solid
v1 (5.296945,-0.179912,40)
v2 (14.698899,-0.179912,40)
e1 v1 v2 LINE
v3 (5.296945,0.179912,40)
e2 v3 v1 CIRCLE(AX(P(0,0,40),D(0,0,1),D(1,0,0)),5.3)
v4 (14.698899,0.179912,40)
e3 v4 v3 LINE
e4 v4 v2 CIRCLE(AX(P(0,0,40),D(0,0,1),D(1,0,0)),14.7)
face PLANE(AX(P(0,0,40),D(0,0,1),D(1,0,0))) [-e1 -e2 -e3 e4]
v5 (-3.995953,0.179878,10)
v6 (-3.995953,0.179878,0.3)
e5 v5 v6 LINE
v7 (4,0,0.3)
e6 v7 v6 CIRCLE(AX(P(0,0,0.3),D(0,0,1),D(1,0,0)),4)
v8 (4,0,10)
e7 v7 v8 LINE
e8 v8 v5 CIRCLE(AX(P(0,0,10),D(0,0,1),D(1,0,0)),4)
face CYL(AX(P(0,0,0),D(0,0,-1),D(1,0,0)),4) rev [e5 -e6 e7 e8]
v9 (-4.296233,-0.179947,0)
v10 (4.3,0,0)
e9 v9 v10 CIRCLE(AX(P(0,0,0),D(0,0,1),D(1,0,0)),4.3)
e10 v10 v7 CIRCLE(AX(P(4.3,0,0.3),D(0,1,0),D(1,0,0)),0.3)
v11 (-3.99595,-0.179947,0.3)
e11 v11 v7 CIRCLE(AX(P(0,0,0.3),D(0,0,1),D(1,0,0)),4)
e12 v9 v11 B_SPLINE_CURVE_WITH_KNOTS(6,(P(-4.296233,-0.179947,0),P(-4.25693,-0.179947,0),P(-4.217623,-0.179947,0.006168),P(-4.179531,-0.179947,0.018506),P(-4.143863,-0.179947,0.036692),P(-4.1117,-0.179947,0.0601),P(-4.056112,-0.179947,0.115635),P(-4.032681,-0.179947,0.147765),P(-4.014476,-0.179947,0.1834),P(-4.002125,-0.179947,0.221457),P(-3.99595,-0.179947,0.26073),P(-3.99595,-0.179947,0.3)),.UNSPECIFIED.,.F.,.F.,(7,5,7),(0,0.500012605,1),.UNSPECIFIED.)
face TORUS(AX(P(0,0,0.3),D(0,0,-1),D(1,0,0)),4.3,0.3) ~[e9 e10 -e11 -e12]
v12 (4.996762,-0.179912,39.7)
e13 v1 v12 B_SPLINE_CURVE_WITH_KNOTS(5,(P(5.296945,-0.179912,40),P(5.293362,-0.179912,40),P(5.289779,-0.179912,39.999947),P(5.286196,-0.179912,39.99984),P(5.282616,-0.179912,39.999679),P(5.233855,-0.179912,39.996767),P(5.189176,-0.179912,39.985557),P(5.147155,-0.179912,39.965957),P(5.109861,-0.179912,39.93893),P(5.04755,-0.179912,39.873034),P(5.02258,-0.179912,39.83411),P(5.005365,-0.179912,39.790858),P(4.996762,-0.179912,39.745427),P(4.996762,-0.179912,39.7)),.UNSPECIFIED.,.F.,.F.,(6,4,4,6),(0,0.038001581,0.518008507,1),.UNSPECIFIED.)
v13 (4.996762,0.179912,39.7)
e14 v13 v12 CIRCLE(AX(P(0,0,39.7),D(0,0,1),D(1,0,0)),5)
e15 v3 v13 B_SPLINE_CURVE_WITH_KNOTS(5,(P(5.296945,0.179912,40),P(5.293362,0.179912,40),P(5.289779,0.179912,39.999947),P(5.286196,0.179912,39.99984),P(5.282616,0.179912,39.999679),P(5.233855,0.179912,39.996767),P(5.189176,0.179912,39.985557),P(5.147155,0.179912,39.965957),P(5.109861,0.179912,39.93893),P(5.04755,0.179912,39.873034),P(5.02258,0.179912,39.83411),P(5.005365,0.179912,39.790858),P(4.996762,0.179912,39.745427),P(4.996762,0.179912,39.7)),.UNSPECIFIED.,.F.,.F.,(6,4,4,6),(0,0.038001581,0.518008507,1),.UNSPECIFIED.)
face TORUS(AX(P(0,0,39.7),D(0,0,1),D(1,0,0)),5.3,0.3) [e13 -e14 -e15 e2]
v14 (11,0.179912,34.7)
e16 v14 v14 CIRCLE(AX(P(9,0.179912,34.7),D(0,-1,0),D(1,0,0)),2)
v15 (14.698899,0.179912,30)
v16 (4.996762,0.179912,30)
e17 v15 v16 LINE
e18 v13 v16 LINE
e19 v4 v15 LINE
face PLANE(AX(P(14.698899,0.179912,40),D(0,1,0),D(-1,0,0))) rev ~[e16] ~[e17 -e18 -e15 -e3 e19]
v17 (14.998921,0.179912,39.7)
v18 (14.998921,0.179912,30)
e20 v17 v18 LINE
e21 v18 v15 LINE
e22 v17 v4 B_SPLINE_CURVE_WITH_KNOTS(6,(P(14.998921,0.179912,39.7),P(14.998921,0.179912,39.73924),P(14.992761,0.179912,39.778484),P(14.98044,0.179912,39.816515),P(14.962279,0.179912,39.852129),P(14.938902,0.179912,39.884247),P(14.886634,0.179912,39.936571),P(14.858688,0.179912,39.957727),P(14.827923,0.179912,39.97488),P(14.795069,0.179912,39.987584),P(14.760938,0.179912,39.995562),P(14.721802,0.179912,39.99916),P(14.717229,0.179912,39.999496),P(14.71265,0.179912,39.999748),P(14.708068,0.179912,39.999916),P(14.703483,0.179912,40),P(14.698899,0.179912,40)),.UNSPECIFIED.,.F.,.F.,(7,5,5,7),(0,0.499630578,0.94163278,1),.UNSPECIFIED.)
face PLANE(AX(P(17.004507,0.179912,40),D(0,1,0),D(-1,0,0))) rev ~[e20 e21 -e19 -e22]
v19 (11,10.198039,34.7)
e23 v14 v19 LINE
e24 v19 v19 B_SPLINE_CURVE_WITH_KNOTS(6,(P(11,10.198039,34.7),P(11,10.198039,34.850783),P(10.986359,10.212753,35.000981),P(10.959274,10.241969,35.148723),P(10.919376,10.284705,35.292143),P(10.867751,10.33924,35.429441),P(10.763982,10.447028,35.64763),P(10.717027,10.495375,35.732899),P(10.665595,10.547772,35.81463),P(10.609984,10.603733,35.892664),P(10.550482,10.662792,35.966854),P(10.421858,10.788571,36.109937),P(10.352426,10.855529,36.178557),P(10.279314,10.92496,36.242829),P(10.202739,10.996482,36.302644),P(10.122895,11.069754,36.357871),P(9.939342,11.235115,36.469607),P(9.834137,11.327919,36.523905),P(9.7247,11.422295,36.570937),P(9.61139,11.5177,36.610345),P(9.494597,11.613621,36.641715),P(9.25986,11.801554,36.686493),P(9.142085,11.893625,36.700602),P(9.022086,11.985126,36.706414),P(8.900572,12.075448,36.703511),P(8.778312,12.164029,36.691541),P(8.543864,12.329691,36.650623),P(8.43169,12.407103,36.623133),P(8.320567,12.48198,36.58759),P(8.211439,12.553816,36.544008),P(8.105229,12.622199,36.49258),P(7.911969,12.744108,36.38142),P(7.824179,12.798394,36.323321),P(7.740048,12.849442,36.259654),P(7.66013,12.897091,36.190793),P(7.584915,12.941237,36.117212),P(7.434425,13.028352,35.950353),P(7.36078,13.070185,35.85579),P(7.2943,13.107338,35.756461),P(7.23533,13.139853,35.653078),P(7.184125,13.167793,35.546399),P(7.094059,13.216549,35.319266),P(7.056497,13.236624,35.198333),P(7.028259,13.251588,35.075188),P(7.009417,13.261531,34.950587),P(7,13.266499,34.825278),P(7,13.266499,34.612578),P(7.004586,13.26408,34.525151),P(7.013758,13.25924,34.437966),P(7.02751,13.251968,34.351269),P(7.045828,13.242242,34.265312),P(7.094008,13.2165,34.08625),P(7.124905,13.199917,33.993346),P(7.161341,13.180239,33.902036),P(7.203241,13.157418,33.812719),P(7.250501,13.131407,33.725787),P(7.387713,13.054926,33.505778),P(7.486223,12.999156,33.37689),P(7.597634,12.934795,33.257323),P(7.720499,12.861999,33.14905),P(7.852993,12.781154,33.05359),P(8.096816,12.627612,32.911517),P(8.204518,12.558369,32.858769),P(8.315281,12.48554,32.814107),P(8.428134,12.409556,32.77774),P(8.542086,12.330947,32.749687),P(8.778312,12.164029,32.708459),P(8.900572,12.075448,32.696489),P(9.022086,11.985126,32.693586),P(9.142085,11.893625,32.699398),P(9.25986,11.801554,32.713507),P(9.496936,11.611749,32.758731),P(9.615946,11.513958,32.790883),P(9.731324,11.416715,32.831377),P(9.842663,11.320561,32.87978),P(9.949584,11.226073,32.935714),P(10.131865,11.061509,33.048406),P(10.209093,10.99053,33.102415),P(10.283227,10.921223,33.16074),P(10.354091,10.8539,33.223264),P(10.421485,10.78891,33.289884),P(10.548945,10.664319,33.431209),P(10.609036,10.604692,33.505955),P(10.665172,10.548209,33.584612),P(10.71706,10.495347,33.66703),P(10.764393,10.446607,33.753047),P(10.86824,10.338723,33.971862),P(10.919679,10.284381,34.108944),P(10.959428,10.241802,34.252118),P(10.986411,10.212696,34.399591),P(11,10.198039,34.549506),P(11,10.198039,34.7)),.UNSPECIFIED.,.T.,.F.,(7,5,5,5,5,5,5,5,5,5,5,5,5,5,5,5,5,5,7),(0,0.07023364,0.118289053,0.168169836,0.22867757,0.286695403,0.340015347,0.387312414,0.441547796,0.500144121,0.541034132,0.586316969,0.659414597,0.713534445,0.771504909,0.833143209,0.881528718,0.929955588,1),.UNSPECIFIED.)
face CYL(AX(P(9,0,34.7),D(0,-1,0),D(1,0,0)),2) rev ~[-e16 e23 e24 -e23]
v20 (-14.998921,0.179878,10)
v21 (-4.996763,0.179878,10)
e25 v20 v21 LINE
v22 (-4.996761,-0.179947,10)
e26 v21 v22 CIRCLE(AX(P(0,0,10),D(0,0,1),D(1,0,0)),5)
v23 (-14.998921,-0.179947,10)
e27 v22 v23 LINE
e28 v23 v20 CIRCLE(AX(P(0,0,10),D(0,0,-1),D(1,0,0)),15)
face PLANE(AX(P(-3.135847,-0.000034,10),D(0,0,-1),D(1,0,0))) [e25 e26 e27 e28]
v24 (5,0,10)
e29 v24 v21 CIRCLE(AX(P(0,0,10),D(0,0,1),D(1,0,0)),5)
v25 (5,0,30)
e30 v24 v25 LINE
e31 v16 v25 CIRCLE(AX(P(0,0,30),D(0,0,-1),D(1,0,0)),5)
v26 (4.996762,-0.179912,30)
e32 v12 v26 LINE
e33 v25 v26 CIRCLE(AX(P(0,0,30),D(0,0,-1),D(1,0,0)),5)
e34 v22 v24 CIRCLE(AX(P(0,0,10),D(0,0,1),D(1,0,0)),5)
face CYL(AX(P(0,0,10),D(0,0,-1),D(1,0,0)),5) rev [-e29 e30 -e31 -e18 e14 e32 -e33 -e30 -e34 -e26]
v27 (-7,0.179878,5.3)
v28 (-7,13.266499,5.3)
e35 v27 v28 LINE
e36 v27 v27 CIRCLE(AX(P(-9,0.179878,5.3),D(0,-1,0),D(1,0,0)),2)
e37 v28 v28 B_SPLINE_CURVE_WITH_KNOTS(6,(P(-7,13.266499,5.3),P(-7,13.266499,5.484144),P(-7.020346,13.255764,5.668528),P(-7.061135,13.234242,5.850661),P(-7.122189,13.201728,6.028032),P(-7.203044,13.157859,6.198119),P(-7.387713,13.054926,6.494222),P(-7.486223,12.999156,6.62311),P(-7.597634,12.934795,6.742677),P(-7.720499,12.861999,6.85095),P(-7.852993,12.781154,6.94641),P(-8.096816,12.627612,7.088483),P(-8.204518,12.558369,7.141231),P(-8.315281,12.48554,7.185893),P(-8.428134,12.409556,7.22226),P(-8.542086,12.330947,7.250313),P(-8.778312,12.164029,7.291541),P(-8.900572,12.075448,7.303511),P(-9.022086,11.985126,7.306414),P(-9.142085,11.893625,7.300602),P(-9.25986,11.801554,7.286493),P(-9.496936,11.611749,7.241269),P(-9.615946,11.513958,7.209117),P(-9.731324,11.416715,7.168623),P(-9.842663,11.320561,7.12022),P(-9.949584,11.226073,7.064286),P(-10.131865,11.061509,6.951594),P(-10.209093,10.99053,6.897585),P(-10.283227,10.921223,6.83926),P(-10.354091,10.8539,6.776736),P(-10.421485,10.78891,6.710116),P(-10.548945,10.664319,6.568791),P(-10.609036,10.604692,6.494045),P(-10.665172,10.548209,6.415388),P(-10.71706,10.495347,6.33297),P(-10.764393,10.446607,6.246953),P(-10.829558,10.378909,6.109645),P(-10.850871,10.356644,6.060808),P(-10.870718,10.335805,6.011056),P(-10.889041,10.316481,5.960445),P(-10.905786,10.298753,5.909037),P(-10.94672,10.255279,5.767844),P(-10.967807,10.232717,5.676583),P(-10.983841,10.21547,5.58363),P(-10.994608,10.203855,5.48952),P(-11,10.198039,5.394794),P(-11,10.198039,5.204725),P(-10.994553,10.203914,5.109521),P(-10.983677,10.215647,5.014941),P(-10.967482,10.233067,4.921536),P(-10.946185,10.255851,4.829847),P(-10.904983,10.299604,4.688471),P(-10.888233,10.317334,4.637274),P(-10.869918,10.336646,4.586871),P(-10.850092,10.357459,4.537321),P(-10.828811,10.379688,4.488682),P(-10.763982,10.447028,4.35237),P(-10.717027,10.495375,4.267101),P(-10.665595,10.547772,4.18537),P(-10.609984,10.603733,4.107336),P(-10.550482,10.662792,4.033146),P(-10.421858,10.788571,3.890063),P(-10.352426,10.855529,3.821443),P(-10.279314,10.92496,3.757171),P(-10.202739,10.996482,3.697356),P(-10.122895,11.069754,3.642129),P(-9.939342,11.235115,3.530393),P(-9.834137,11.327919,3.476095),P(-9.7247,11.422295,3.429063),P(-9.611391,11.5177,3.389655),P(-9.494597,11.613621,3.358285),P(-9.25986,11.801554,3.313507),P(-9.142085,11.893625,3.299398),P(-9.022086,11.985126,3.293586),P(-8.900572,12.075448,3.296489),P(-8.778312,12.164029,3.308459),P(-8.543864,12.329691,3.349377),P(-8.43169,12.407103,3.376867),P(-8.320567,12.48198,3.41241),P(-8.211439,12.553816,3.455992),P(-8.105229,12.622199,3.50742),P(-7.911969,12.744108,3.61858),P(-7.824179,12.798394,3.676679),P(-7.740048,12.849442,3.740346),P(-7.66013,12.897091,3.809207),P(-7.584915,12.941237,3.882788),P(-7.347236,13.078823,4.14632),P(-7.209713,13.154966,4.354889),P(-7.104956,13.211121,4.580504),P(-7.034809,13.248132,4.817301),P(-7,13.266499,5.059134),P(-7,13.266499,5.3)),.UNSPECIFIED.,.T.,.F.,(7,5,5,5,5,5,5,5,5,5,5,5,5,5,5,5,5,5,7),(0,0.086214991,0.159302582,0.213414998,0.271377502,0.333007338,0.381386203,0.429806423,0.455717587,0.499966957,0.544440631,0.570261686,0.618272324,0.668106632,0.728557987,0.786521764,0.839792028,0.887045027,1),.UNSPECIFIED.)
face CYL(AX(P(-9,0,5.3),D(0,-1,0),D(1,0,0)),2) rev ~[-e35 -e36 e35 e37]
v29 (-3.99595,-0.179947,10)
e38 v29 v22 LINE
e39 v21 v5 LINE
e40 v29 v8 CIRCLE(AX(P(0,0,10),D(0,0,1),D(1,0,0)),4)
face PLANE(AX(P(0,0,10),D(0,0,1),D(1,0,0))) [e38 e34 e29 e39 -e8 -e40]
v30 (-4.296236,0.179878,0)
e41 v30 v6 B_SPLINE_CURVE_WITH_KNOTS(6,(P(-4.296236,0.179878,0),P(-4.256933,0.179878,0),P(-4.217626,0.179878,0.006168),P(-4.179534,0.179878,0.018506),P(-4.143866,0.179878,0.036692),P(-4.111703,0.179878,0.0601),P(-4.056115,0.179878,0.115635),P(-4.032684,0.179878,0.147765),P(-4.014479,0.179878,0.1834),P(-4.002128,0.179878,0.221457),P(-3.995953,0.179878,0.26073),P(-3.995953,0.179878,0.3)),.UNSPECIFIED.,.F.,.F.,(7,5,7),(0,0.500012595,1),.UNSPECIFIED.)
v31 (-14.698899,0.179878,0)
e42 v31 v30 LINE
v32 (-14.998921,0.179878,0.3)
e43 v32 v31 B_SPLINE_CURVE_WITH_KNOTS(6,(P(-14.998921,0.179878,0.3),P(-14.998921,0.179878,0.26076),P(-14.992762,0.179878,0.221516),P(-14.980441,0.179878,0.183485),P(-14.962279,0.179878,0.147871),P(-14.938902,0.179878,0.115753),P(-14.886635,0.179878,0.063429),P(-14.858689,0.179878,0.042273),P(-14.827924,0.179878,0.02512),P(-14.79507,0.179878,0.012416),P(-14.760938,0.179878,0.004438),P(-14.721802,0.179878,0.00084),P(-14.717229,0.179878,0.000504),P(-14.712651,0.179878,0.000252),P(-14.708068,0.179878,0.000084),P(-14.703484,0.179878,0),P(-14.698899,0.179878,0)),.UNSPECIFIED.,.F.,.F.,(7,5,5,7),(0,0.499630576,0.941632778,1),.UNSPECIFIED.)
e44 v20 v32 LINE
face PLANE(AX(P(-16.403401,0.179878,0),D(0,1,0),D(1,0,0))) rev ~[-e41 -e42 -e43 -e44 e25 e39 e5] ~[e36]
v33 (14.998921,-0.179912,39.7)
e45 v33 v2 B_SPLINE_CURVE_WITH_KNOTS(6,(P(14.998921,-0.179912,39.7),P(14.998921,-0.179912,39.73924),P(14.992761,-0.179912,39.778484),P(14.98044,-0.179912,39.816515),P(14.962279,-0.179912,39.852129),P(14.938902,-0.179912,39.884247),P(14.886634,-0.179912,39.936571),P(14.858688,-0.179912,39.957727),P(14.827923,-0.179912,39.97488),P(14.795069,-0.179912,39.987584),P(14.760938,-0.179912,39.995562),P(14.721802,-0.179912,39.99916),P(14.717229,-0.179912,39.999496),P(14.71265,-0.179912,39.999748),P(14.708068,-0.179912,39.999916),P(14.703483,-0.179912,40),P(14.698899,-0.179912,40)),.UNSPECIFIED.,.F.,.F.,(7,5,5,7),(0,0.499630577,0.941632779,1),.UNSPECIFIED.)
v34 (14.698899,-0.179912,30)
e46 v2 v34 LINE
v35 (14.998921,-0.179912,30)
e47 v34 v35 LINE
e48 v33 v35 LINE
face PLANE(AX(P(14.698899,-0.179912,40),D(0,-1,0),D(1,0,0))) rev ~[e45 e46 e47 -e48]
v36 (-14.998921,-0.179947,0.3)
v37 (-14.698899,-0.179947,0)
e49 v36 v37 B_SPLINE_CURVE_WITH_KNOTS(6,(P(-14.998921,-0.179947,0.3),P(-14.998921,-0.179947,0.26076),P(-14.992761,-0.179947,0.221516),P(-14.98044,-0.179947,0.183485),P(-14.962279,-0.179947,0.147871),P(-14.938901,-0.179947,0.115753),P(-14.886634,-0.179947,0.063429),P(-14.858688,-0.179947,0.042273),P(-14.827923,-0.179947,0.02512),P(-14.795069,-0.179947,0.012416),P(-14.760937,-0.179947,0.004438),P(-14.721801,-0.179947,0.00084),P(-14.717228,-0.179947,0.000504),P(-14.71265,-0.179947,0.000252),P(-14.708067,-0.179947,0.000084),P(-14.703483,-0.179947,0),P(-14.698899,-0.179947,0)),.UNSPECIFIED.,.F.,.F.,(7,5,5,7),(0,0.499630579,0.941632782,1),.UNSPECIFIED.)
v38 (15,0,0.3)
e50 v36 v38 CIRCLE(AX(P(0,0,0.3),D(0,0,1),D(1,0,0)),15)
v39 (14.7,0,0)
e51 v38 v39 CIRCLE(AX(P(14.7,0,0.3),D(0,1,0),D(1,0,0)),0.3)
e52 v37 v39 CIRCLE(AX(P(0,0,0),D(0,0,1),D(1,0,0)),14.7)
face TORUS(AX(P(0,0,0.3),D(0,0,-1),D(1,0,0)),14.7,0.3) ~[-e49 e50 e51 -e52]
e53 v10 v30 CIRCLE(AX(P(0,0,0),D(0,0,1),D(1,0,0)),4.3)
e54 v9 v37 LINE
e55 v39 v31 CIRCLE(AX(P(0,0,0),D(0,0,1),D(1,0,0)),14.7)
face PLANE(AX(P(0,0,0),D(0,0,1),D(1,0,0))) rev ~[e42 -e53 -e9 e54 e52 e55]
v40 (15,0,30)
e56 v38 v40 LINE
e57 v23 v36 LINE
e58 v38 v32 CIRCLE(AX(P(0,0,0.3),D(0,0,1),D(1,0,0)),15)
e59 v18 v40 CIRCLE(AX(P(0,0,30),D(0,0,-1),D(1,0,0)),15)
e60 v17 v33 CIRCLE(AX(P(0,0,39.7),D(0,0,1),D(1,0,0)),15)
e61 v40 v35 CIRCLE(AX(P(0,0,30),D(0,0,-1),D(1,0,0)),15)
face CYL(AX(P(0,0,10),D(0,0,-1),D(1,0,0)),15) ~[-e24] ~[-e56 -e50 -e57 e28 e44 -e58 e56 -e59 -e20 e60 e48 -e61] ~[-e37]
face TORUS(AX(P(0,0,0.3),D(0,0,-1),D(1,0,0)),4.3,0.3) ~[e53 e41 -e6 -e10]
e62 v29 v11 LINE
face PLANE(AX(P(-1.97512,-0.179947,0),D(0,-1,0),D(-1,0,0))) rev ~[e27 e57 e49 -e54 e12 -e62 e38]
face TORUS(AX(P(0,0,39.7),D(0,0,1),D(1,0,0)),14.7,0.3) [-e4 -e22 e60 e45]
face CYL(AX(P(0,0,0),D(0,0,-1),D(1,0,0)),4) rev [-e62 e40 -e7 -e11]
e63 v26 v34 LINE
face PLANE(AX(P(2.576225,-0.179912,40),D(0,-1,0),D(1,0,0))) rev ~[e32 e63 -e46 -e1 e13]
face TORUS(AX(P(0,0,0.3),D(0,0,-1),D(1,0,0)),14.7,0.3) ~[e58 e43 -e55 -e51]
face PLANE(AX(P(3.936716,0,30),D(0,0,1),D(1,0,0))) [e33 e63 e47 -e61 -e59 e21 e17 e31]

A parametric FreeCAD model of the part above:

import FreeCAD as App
import Part
import Sketcher
from FreeCAD import Vector


def edges_at(feature, points):
    """Names of the edges that pass closest to the given points."""
    edges = feature.Shape.Edges
    near = lambda p: min(range(len(edges)), key=lambda i: edges[i].distToShape(Part.Vertex(*p))[0])
    return sorted({f"Edge{near(p) + 1}" for p in points})


def add_polygon(sketch, points):
    """Adds a closed chain of lines whose ends are joined by coincident constraints."""
    first, n = sketch.GeometryCount, len(points)
    for a, b in zip(points, points[1:] + points[:1]):
        sketch.addGeometry(Part.LineSegment(App.Vector(*a, 0), App.Vector(*b, 0)), False)
    for i in range(n):
        sketch.addConstraint(Sketcher.Constraint("Coincident", first + i, 2, first + (i + 1) % n, 1))

doc = App.newDocument("Part")
params = doc.addObject("Spreadsheet::Sheet", "Params")
for row, (alias, value) in enumerate([
    ("sketch1_diameter", "30 mm"),
    ("sketch1_diameter2", "8 mm"),
    ("pad1_length", "10 mm"),
    ("sketch2_diameter", "30 mm"),
    ("sketch2_diameter2", "10 mm"),
    ("pad2_length", "30 mm"),
    ("fillet_radius", "0.3 mm"),
    ("fillet2_radius", "0.3 mm"),
    ("sketch3_diameter", "4 mm"),
    ("pocket1_length", "20.34312 mm"),
    ("pocket2_length", "10 mm"),
    ("pocket3_length", "10 mm"),
], start=1):
    params.set(f"A{row}", alias)
    params.set(f"B{row}", "=" + value)
    params.setAlias(f"B{row}", alias)

body = doc.addObject("PartDesign::Body", "Body")

sketch1 = body.newObject("Sketcher::SketchObject", "Sketch")
sketch1.AttachmentSupport = (doc.getObject("XY_Plane"), [""])
sketch1.MapMode = "FlatFace"
sketch1.addGeometry([
    Part.Circle(Vector(0, 0, 0), Vector(0, 0, 1), 15),
    Part.Circle(Vector(0, 0, 0), Vector(0, 0, 1), 4),
], False)
sketch1.addConstraint([
    Sketcher.Constraint("Coincident", 0, 3, -1, 1),
    Sketcher.Constraint("Coincident", 1, 3, -1, 1),
    Sketcher.Constraint("Diameter", 0, 30.0),
    Sketcher.Constraint("Diameter", 1, 8.0),
])
sketch1.setExpression("Constraints[2]", "Params.sketch1_diameter")
sketch1.setExpression("Constraints[3]", "Params.sketch1_diameter2")
pad1 = body.newObject("PartDesign::Pad", "Pad")
pad1.Profile = sketch1
pad1.setExpression("Length", "Params.pad1_length")

sketch2 = body.newObject("Sketcher::SketchObject", "Sketch001")
sketch2.AttachmentSupport = (doc.getObject("XY_Plane"), [""])
sketch2.MapMode = "FlatFace"
sketch2.AttachmentOffset = App.Placement(Vector(0, 0, 10), App.Rotation())
sketch2.addGeometry([
    Part.Circle(Vector(0, 0, 0), Vector(0, 0, 1), 15),
    Part.Circle(Vector(0, 0, 0), Vector(0, 0, 1), 5),
], False)
sketch2.addConstraint([
    Sketcher.Constraint("Coincident", 0, 3, -1, 1),
    Sketcher.Constraint("Coincident", 1, 3, -1, 1),
    Sketcher.Constraint("Diameter", 0, 30.0),
    Sketcher.Constraint("Diameter", 1, 10.0),
])
sketch2.setExpression("Constraints[2]", "Params.sketch2_diameter")
sketch2.setExpression("Constraints[3]", "Params.sketch2_diameter2")
pad2 = body.newObject("PartDesign::Pad", "Pad001")
pad2.Profile = sketch2
pad2.setExpression("Length", "Params.pad2_length")
doc.recompute()

fillet = body.newObject("PartDesign::Fillet", "Fillet")
fillet.Base = (pad2, edges_at(pad2, [(-15, 0, 40)]))
fillet.setExpression("Radius", "Params.fillet_radius")
doc.recompute()

fillet2 = body.newObject("PartDesign::Fillet", "Fillet001")
fillet2.Base = (fillet, edges_at(fillet, [(-15, 0, 0), (-5, 0, 40), (-4, 0, 0)]))
fillet2.setExpression("Radius", "Params.fillet2_radius")

sketch3 = body.newObject("Sketcher::SketchObject", "Sketch002")
sketch3.AttachmentSupport = (doc.getObject("XZ_Plane"), [""])
sketch3.MapMode = "FlatFace"
sketch3.addGeometry([
    Part.Circle(Vector(9, 34.7, 0), Vector(0, 0, 1), 2),
    Part.Circle(Vector(-9, 5.3, 0), Vector(0, 0, 1), 2),
], False)
sketch3.addConstraint([
    Sketcher.Constraint("Equal", 0, 1),
    Sketcher.Constraint("Diameter", 0, 4.0),
    Sketcher.Constraint("DistanceX", -1, 1, 0, 3, 9.0),
    Sketcher.Constraint("DistanceX", 1, 3, -1, 1, 9.0),
    Sketcher.Constraint("DistanceY", -1, 1, 0, 3, 34.7),
    Sketcher.Constraint("DistanceY", -1, 1, 1, 3, 5.3),
])
sketch3.setExpression("Constraints[1]", "Params.sketch3_diameter")
pocket1 = body.newObject("PartDesign::Pocket", "Pocket")
pocket1.Profile = sketch3
pocket1.setExpression("Length", "Params.pocket1_length")

sketch4 = body.newObject("Sketcher::SketchObject", "Sketch003")
sketch4.AttachmentSupport = (doc.getObject("XY_Plane"), [""])
sketch4.MapMode = "FlatFace"
sketch4.AttachmentOffset = App.Placement(Vector(0, 0, 40), App.Rotation())
add_polygon(sketch4, [(2.58, -0.18), (14.7, -0.18), (17, -0.18), (17, 0.18), (14.7, 0.18), (2.58, 0.18)])
sketch4.addConstraint([
    Sketcher.Constraint("Horizontal", 0),
    Sketcher.Constraint("Horizontal", 1),
    Sketcher.Constraint("Vertical", 2),
    Sketcher.Constraint("Horizontal", 3),
    Sketcher.Constraint("Horizontal", 4),
    Sketcher.Constraint("Vertical", 5),
    Sketcher.Constraint("Symmetric", 0, 2, 3, 2, -1),
    Sketcher.Constraint("DistanceX", -1, 1, 0, 2, 14.698899),
    Sketcher.Constraint("DistanceX", 0, 1, 0, 2, 12.122674),
    Sketcher.Constraint("DistanceX", 1, 1, 1, 2, 2.305608),
    Sketcher.Constraint("DistanceY", 2, 1, 2, 2, 0.359825),
])
pocket2 = body.newObject("PartDesign::Pocket", "Pocket001")
pocket2.Profile = sketch4
pocket2.setExpression("Length", "Params.pocket2_length")

sketch5 = body.newObject("Sketcher::SketchObject", "Sketch004")
sketch5.AttachmentSupport = (doc.getObject("XY_Plane"), [""])
sketch5.MapMode = "FlatFace"
add_polygon(sketch5, [(-1.98, 0.18), (-1.98, -0.18), (-16.4, -0.18), (-16.4, 0.18)])
sketch5.addConstraint([
    Sketcher.Constraint("Vertical", 0),
    Sketcher.Constraint("Horizontal", 1),
    Sketcher.Constraint("Vertical", 2),
    Sketcher.Constraint("Horizontal", 3),
    Sketcher.Constraint("DistanceX", 1, 2, 1, 1, 14.428281),
    Sketcher.Constraint("DistanceX", 1, 2, -1, 1, 16.403401),
    Sketcher.Constraint("DistanceY", 0, 2, 0, 1, 0.359825),
    Sketcher.Constraint("DistanceY", 0, 2, -1, 1, 0.179947),
])
pocket3 = body.newObject("PartDesign::Pocket", "Pocket002")
pocket3.Profile = sketch5
pocket3.setExpression("Length", "Params.pocket3_length")
pocket3.Reversed = True

doc.recompute()
